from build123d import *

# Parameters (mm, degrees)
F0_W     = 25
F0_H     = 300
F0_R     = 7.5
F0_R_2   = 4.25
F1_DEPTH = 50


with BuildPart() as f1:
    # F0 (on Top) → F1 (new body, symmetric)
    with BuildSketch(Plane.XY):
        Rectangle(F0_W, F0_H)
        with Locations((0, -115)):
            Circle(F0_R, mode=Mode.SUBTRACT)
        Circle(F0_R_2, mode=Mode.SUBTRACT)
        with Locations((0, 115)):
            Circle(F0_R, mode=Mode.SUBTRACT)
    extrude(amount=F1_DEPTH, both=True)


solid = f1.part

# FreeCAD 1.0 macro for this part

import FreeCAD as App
import Part
import Sketcher

V = App.Vector


def add_polygon(sketch, points):
    """Adds a closed chain of lines whose ends are joined by coincident constraints."""
    first, n = sketch.GeometryCount, len(points)
    for a, b in zip(points, points[1:] + points[:1]):
        sketch.addGeometry(Part.LineSegment(App.Vector(*a, 0), App.Vector(*b, 0)), False)
    for i in range(n):
        sketch.addConstraint(Sketcher.Constraint("Coincident", first + i, 2, first + (i + 1) % n, 1))

doc = App.newDocument("Part")
body = doc.addObject("PartDesign::Body", "Body")

# Sketch on XY plane
sketch1 = doc.addObject("Sketcher::SketchObject", "Sketch")
body.addObject(sketch1)
sketch1.AttachmentSupport = (doc.XY_Plane, [""])
sketch1.MapMode = "FlatFace"
add_polygon(sketch1, [(-12.5, 150), (-12.5, -150), (12.5, -150), (12.5, 150)])  # lines 0-3
sketch1.addGeometry(Part.Circle(V(0, -115, 0), V(0, 0, 1), 7.5), False)  # 4
sketch1.addGeometry(Part.Circle(V(0, 0, 0), V(0, 0, 1), 4.2), False)  # 5
sketch1.addGeometry(Part.Circle(V(0, 115, 0), V(0, 0, 1), 7.5), False)  # 6
sketch1.addConstraint(Sketcher.Constraint("Vertical", 0))
sketch1.addConstraint(Sketcher.Constraint("Horizontal", 1))
sketch1.addConstraint(Sketcher.Constraint("Vertical", 2))
sketch1.addConstraint(Sketcher.Constraint("Horizontal", 3))
sketch1.addConstraint(Sketcher.Constraint("Coincident", 5, 3, -1, 1))
sketch1.addConstraint(Sketcher.Constraint("Equal", 4, 6))
sketch1.addConstraint(Sketcher.Constraint("Symmetric", 4, 3, 6, 3, -1, 1))
sketch1.addConstraint(Sketcher.Constraint("Symmetric", 0, 2, 2, 2, -1, 1))
sketch1.addConstraint(Sketcher.Constraint("PointOnObject", 4, 3, -2))
sketch1.addConstraint(Sketcher.Constraint("Diameter", 4, 15.0))
sketch1.addConstraint(Sketcher.Constraint("Diameter", 5, 8.5))
sketch1.addConstraint(Sketcher.Constraint("DistanceX", 1, 1, 1, 2, 25.0))
sketch1.addConstraint(Sketcher.Constraint("DistanceY", 0, 2, 0, 1, 300.0))
sketch1.addConstraint(Sketcher.Constraint("DistanceY", 4, 3, -1, 1, 115.0))
pad1 = doc.addObject("PartDesign::Pad", "Pad")
body.addObject(pad1)
pad1.Profile = sketch1
pad1.Length = 100
pad1.Midplane = True

doc.recompute()
